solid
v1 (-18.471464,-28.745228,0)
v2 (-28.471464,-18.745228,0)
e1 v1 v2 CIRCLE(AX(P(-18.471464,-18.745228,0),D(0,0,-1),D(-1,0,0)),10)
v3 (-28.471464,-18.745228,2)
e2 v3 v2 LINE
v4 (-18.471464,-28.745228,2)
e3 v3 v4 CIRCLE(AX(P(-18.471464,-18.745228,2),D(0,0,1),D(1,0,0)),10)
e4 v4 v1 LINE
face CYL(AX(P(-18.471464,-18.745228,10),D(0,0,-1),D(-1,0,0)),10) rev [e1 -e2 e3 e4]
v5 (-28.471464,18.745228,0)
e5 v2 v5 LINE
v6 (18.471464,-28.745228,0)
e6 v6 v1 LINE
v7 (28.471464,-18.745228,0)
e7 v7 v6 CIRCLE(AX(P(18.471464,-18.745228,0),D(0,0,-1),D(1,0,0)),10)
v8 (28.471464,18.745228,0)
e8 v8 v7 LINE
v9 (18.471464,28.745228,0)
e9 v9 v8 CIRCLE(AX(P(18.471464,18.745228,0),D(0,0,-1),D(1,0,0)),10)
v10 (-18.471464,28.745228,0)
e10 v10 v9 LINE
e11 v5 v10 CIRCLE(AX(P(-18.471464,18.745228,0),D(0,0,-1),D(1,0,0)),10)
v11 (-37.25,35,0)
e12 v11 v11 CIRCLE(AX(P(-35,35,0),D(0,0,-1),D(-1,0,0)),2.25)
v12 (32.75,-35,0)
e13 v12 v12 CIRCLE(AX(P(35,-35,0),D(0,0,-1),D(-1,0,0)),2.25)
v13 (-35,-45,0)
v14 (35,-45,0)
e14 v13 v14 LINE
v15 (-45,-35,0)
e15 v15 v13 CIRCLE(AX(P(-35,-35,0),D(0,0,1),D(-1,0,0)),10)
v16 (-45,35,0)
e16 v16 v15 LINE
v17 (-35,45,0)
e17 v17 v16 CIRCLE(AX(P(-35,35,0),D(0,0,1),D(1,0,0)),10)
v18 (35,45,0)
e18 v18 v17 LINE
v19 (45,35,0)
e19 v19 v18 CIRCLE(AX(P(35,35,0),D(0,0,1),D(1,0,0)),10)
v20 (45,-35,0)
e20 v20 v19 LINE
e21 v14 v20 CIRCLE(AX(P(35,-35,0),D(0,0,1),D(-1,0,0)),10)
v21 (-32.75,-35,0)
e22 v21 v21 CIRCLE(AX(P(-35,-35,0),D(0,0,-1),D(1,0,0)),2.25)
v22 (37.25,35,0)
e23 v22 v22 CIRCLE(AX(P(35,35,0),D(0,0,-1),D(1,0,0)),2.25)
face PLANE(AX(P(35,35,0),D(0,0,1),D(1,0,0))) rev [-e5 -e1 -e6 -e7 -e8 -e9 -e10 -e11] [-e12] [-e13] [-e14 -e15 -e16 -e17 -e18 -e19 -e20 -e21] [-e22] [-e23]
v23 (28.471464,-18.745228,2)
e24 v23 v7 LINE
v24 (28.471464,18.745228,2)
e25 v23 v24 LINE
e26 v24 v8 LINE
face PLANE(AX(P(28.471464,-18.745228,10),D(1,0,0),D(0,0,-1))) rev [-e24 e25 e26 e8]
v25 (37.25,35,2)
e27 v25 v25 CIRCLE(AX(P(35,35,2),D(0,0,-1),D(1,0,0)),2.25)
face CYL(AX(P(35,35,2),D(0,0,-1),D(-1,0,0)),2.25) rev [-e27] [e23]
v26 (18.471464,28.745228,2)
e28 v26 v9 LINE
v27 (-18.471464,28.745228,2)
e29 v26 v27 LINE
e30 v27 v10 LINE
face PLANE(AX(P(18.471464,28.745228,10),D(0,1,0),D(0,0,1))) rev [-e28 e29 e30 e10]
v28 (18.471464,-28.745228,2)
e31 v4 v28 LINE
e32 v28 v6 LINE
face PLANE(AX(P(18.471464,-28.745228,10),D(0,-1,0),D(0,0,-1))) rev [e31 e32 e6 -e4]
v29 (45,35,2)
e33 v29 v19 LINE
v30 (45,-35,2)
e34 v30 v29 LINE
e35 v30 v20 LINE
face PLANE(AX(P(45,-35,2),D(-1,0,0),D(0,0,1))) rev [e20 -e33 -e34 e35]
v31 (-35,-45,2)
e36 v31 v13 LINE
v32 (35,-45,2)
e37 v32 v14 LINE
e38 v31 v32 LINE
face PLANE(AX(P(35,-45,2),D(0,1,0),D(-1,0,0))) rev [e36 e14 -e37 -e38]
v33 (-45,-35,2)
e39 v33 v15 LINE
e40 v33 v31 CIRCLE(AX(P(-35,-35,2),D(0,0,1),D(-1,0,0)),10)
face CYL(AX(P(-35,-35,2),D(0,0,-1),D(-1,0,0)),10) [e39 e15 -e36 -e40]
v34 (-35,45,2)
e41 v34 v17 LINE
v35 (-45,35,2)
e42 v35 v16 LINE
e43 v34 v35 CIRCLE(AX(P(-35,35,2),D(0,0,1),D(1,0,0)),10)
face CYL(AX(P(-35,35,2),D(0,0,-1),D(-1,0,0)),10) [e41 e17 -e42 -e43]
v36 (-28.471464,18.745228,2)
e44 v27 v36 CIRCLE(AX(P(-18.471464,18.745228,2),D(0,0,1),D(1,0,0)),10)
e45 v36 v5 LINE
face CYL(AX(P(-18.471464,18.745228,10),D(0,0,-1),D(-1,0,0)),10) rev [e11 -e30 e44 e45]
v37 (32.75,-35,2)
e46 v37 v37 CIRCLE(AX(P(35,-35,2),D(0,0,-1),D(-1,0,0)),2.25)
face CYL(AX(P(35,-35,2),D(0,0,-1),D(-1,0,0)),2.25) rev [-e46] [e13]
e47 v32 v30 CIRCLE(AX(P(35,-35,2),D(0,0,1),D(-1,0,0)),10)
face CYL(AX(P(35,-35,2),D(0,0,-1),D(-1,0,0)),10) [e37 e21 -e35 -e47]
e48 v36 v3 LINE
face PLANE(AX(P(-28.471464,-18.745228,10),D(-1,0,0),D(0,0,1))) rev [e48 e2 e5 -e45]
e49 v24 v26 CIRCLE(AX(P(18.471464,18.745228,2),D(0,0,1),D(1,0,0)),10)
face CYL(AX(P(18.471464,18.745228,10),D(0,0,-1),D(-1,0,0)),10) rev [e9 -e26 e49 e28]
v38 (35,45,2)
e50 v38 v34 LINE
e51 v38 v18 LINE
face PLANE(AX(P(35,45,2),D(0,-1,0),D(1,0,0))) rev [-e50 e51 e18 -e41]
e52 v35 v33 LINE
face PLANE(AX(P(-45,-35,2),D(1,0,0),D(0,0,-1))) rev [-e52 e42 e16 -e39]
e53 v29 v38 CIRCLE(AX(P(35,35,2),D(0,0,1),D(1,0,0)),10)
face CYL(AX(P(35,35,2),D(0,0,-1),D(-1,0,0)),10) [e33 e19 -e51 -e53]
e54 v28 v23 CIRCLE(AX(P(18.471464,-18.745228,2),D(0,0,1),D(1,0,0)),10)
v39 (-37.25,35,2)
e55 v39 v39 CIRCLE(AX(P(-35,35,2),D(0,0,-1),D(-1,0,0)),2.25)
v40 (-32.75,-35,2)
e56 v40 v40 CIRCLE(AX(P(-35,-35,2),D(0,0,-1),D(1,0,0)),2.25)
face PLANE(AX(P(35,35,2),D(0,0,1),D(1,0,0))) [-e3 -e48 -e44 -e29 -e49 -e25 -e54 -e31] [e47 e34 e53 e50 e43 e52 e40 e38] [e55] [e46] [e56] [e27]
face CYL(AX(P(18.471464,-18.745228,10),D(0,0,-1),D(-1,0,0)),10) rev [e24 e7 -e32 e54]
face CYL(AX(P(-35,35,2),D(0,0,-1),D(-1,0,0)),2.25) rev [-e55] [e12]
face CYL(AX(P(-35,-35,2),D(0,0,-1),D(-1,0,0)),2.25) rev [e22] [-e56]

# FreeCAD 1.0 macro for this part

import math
import FreeCAD as App
import Part
import Sketcher
from FreeCAD import Vector

doc = App.newDocument("Part")
params = doc.addObject("Spreadsheet::Sheet", "Params")
for row, (alias, value) in enumerate([
    ("sketch1_radius", "10 mm"),
    ("sketch1_width", "70 mm"),
    ("pad1_length", "2 mm"),
    ("sketch2_diameter", "4.5 mm"),
    ("sketch3_radius", "10 mm"),
    ("pocket2_length", "10 mm"),
], start=1):
    params.set(f"A{row}", alias)
    params.set(f"B{row}", "=" + value)
    params.setAlias(f"B{row}", alias)

body = doc.addObject("PartDesign::Body", "Body")

sketch1 = body.newObject("Sketcher::SketchObject", "Sketch")
sketch1.AttachmentSupport = (doc.getObject("XY_Plane"), [""])
sketch1.MapMode = "FlatFace"
sketch1.addGeometry(Part.LineSegment(Vector(-35, -45, 0), Vector(35, -45, 0)), False)
sketch1.addGeometry(Part.ArcOfCircle(Part.Circle(Vector(35, -35, 0), Vector(0, 0, 1), 10), math.radians(-90), math.radians(0)), False)
sketch1.addGeometry(Part.LineSegment(Vector(45, -35, 0), Vector(45, 35, 0)), False)
sketch1.addGeometry(Part.ArcOfCircle(Part.Circle(Vector(35, 35, 0), Vector(0, 0, 1), 10), math.radians(0), math.radians(90)), False)
sketch1.addGeometry(Part.LineSegment(Vector(35, 45, 0), Vector(-35, 45, 0)), False)
sketch1.addGeometry(Part.ArcOfCircle(Part.Circle(Vector(-35, 35, 0), Vector(0, 0, 1), 10), math.radians(90), math.radians(180)), False)
sketch1.addGeometry(Part.LineSegment(Vector(-45, 35, 0), Vector(-45, -35, 0)), False)
sketch1.addGeometry(Part.ArcOfCircle(Part.Circle(Vector(-35, -35, 0), Vector(0, 0, 1), 10), math.radians(180), math.radians(270)), False)
sketch1.addConstraint(Sketcher.Constraint("Tangent", 0, 2, 1, 1))
sketch1.addConstraint(Sketcher.Constraint("Tangent", 1, 2, 2, 1))
sketch1.addConstraint(Sketcher.Constraint("Tangent", 2, 2, 3, 1))
sketch1.addConstraint(Sketcher.Constraint("Tangent", 3, 2, 4, 1))
sketch1.addConstraint(Sketcher.Constraint("Tangent", 4, 2, 5, 1))
sketch1.addConstraint(Sketcher.Constraint("Tangent", 5, 2, 6, 1))
sketch1.addConstraint(Sketcher.Constraint("Tangent", 6, 2, 7, 1))
sketch1.addConstraint(Sketcher.Constraint("Tangent", 7, 2, 0, 1))
sketch1.addConstraint(Sketcher.Constraint("Horizontal", 0))
sketch1.addConstraint(Sketcher.Constraint("Vertical", 2))
sketch1.addConstraint(Sketcher.Constraint("Horizontal", 4))
sketch1.addConstraint(Sketcher.Constraint("Vertical", 6))
sketch1.addConstraint(Sketcher.Constraint("Equal", 1, 3))
sketch1.addConstraint(Sketcher.Constraint("Equal", 3, 5))
sketch1.addConstraint(Sketcher.Constraint("Equal", 5, 7))
sketch1.addConstraint(Sketcher.Constraint("Symmetric", 1, 3, 5, 3, -1, 1))
sketch1.addConstraint(Sketcher.Constraint("Equal", 4, 2))
sketch1.addConstraint(Sketcher.Constraint("Radius", 1, 10.0))
sketch1.addConstraint(Sketcher.Constraint("DistanceX", 0, 1, 0, 2, 70.0))
sketch1.setExpression("Constraints[17]", "Params.sketch1_radius")
sketch1.setExpression("Constraints[18]", "Params.sketch1_width")
pad1 = body.newObject("PartDesign::Pad", "Pad")
pad1.Profile = sketch1
pad1.setExpression("Length", "Params.pad1_length")

sketch2 = body.newObject("Sketcher::SketchObject", "Sketch001")
sketch2.AttachmentSupport = (doc.getObject("XY_Plane"), [""])
sketch2.MapMode = "FlatFace"
sketch2.addGeometry(Part.Circle(Vector(35, -35, 0), Vector(0, 0, 1), 2.2), False)
sketch2.addGeometry(Part.Circle(Vector(35, 35, 0), Vector(0, 0, 1), 2.2), False)
sketch2.addGeometry(Part.Circle(Vector(-35, -35, 0), Vector(0, 0, 1), 2.2), False)
sketch2.addGeometry(Part.Circle(Vector(-35, 35, 0), Vector(0, 0, 1), 2.2), False)
sketch2.addConstraint(Sketcher.Constraint("Equal", 0, 1))
sketch2.addConstraint(Sketcher.Constraint("Equal", 1, 2))
sketch2.addConstraint(Sketcher.Constraint("Equal", 2, 3))
sketch2.addConstraint(Sketcher.Constraint("Symmetric", 1, 3, 2, 3, -1, 1))
sketch2.addConstraint(Sketcher.Constraint("Symmetric", 0, 3, 3, 3, -1, 1))
sketch2.addConstraint(Sketcher.Constraint("Symmetric", 0, 3, 2, 3, -2))
sketch2.addConstraint(Sketcher.Constraint("Diameter", 0, 4.5))
sketch2.addConstraint(Sketcher.Constraint("DistanceX", -1, 1, 0, 3, 35.0))
sketch2.addConstraint(Sketcher.Constraint("DistanceY", 0, 3, -1, 1, 35.0))
sketch2.setExpression("Constraints[6]", "Params.sketch2_diameter")
pocket1 = body.newObject("PartDesign::Pocket", "Pocket")
pocket1.Profile = sketch2
pocket1.Type = "ThroughAll"
pocket1.Reversed = True

sketch3 = body.newObject("Sketcher::SketchObject", "Sketch002")
sketch3.AttachmentSupport = (doc.getObject("XY_Plane"), [""])
sketch3.MapMode = "FlatFace"
sketch3.addGeometry(Part.LineSegment(Vector(18, -29, 0), Vector(-18, -29, 0)), False)
sketch3.addGeometry(Part.ArcOfCircle(Part.Circle(Vector(-18, -19, 0), Vector(0, 0, 1), 10), math.radians(180), math.radians(270)), False)
sketch3.addGeometry(Part.LineSegment(Vector(-28, -19, 0), Vector(-28, 19, 0)), False)
sketch3.addGeometry(Part.ArcOfCircle(Part.Circle(Vector(-18, 19, 0), Vector(0, 0, 1), 10), math.radians(90), math.radians(180)), False)
sketch3.addGeometry(Part.LineSegment(Vector(-18, 29, 0), Vector(18, 29, 0)), False)
sketch3.addGeometry(Part.ArcOfCircle(Part.Circle(Vector(18, 19, 0), Vector(0, 0, 1), 10), math.radians(0), math.radians(90)), False)
sketch3.addGeometry(Part.LineSegment(Vector(28, 19, 0), Vector(28, -19, 0)), False)
sketch3.addGeometry(Part.ArcOfCircle(Part.Circle(Vector(18, -19, 0), Vector(0, 0, 1), 10), math.radians(-90), math.radians(0)), False)
sketch3.addConstraint(Sketcher.Constraint("Tangent", 0, 2, 1, 2))
sketch3.addConstraint(Sketcher.Constraint("Tangent", 1, 1, 2, 1))
sketch3.addConstraint(Sketcher.Constraint("Tangent", 2, 2, 3, 2))
sketch3.addConstraint(Sketcher.Constraint("Tangent", 3, 1, 4, 1))
sketch3.addConstraint(Sketcher.Constraint("Tangent", 4, 2, 5, 2))
sketch3.addConstraint(Sketcher.Constraint("Tangent", 5, 1, 6, 1))
sketch3.addConstraint(Sketcher.Constraint("Tangent", 6, 2, 7, 2))
sketch3.addConstraint(Sketcher.Constraint("Tangent", 7, 1, 0, 1))
sketch3.addConstraint(Sketcher.Constraint("Horizontal", 0))
sketch3.addConstraint(Sketcher.Constraint("Vertical", 2))
sketch3.addConstraint(Sketcher.Constraint("Horizontal", 4))
sketch3.addConstraint(Sketcher.Constraint("Vertical", 6))
sketch3.addConstraint(Sketcher.Constraint("Equal", 1, 3))
sketch3.addConstraint(Sketcher.Constraint("Equal", 3, 5))
sketch3.addConstraint(Sketcher.Constraint("Equal", 5, 7))
sketch3.addConstraint(Sketcher.Constraint("Symmetric", 1, 3, 5, 3, -1, 1))
sketch3.addConstraint(Sketcher.Constraint("Radius", 1, 10.0))
sketch3.addConstraint(Sketcher.Constraint("DistanceX", 0, 2, 0, 1, 36.942928))
sketch3.addConstraint(Sketcher.Constraint("DistanceY", 2, 1, 2, 2, 37.490456))
sketch3.setExpression("Constraints[16]", "Params.sketch3_radius")
pocket2 = body.newObject("PartDesign::Pocket", "Pocket001")
pocket2.Profile = sketch3
pocket2.setExpression("Length", "Params.pocket2_length")
pocket2.Reversed = True

doc.recompute()
